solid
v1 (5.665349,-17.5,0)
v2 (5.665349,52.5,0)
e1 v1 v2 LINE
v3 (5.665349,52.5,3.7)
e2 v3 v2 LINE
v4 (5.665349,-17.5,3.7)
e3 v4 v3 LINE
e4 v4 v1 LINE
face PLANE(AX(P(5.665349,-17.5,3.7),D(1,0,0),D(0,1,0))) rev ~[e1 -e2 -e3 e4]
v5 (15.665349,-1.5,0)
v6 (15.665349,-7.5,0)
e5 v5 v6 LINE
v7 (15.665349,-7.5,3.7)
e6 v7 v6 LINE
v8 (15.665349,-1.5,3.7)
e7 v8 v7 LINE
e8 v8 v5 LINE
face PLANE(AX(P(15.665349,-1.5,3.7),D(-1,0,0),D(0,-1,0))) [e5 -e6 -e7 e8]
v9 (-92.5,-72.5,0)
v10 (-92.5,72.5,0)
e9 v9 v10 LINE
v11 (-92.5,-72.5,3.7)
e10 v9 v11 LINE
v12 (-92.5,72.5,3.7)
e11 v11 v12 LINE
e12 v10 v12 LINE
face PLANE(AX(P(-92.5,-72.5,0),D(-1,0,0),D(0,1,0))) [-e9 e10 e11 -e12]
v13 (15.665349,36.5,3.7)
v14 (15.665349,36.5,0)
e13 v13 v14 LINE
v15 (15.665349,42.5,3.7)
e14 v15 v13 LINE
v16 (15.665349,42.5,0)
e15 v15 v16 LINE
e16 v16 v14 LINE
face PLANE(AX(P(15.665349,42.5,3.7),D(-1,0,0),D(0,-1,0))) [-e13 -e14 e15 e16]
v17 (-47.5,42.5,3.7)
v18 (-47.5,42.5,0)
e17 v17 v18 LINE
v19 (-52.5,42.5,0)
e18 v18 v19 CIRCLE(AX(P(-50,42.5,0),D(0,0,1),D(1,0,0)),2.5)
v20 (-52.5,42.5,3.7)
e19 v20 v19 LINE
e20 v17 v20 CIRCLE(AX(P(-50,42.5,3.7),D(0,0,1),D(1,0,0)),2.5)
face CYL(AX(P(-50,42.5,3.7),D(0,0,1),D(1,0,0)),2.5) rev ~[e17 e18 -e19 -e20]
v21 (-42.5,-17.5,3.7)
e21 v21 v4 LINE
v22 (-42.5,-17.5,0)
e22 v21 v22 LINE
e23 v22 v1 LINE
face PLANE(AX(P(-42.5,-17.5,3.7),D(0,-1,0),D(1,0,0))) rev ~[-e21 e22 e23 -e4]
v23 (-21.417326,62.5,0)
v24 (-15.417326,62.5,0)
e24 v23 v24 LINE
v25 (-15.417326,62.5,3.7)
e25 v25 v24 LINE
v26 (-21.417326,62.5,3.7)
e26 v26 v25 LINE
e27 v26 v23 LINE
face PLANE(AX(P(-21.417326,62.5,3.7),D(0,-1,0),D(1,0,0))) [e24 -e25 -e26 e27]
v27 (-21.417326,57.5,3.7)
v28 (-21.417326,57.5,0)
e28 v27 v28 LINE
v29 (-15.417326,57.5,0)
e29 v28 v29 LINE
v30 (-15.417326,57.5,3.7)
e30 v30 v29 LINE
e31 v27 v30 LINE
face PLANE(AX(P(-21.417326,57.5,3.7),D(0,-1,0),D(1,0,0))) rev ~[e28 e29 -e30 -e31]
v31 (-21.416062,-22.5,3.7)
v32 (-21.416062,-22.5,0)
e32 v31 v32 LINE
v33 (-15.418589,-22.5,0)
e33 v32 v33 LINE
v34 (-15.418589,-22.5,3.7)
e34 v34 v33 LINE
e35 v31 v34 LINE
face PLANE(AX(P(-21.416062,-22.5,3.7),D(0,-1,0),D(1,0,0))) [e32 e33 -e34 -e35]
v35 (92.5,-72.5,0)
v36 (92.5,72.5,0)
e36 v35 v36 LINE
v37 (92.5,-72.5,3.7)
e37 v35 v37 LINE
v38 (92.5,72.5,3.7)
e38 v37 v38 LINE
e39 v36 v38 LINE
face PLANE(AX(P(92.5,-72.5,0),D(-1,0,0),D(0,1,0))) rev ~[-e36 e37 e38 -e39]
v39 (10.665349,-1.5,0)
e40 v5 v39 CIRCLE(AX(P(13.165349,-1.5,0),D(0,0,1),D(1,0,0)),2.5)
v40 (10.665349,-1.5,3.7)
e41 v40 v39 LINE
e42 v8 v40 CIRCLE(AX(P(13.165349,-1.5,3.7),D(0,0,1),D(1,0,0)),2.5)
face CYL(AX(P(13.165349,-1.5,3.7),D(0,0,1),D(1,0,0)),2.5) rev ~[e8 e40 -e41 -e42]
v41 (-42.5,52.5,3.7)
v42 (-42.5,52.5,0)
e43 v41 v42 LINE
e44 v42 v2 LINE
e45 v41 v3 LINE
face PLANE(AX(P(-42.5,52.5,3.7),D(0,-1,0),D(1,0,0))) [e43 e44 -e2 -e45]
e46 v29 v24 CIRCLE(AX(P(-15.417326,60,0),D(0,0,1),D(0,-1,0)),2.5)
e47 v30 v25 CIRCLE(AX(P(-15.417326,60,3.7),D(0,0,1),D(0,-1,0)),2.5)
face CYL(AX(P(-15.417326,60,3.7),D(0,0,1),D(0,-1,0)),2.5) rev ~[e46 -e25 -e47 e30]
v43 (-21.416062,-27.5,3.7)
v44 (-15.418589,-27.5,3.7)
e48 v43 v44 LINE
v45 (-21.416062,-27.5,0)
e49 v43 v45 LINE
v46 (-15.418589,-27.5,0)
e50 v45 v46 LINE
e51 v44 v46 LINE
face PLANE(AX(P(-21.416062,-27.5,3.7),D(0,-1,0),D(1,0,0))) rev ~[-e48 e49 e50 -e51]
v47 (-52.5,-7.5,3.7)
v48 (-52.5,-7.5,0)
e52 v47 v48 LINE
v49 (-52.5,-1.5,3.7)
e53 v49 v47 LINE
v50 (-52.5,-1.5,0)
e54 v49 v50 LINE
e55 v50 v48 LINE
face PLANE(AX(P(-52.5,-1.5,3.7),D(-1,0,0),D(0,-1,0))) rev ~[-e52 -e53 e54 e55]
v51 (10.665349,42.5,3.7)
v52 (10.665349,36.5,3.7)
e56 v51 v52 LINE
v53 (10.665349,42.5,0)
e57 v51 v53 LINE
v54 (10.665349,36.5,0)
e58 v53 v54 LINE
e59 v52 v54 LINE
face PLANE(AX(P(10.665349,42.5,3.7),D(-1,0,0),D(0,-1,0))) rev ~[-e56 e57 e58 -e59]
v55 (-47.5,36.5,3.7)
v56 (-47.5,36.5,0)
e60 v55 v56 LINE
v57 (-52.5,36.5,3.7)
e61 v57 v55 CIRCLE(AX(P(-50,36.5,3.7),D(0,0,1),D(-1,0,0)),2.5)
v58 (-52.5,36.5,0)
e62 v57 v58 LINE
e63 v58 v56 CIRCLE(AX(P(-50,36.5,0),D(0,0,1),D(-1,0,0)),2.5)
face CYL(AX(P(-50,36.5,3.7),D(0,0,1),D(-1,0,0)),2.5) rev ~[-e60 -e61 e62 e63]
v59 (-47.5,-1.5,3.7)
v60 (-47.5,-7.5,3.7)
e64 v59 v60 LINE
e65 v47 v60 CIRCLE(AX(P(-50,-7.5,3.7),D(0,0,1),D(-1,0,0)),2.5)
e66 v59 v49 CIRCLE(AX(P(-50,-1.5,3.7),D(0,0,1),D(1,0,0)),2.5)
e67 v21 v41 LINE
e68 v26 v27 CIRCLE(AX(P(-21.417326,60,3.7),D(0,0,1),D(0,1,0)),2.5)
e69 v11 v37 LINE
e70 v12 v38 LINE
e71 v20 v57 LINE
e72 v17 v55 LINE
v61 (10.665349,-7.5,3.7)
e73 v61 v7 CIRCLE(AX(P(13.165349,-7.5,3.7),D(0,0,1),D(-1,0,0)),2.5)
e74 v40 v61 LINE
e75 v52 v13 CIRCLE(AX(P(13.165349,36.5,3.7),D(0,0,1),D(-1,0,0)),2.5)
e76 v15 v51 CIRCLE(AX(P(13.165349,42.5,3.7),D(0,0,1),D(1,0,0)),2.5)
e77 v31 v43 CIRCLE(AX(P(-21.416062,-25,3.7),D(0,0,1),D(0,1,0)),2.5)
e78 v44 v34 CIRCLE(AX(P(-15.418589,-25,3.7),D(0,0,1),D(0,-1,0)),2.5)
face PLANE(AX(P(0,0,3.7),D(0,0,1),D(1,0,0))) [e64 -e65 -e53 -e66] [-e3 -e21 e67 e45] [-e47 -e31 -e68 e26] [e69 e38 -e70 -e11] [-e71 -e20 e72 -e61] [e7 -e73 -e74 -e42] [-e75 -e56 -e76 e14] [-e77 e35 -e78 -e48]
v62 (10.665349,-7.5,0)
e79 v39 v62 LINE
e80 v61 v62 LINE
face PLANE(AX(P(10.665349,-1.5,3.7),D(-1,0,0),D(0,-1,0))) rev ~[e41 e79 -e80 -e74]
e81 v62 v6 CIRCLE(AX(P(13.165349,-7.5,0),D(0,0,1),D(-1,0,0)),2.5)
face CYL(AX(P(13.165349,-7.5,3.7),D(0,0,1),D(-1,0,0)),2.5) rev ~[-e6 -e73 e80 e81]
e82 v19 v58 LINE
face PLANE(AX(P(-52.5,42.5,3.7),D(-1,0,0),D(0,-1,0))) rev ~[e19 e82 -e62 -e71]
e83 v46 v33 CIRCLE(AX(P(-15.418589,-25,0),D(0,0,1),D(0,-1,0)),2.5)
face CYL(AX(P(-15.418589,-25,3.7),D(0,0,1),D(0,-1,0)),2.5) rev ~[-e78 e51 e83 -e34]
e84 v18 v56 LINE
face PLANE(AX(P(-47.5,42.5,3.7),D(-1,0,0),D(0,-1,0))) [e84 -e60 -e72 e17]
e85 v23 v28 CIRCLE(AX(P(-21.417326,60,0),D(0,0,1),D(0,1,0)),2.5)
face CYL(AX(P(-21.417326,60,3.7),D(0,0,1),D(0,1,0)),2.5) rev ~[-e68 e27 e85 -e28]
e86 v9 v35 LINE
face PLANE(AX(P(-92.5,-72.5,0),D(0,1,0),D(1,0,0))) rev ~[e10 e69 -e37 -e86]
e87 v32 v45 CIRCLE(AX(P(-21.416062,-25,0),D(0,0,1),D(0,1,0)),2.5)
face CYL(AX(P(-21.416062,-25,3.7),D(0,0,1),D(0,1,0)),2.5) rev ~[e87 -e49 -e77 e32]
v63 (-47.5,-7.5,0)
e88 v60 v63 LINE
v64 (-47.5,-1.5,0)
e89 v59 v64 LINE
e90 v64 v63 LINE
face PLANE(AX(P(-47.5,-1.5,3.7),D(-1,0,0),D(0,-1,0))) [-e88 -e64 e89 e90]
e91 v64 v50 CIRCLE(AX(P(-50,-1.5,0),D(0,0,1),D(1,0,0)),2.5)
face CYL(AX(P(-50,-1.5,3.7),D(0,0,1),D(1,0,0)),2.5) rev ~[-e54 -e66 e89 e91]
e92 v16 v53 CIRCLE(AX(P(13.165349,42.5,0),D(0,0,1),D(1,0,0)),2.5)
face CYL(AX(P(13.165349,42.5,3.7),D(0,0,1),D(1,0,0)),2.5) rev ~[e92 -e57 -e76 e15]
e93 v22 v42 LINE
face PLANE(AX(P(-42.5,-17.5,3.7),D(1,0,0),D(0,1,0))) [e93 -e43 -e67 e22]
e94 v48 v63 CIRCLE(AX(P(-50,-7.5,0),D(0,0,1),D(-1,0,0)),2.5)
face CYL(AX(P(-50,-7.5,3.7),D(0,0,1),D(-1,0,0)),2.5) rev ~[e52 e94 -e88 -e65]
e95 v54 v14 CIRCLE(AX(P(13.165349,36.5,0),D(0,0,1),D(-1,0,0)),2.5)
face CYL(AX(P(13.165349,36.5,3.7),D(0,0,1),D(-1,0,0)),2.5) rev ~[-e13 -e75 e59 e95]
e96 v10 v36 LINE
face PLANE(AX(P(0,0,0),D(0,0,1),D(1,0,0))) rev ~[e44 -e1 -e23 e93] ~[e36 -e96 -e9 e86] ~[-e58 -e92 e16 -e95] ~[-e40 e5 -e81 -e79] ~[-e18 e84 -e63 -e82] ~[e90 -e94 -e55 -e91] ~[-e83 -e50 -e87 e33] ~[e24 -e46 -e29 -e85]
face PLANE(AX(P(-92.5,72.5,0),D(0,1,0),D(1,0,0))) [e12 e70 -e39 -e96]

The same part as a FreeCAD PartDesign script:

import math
import FreeCAD as App
import Part
import Sketcher
from FreeCAD import Vector

doc = App.newDocument("Part")
params = doc.addObject("Spreadsheet::Sheet", "Params")
for row, (alias, value) in enumerate([
    ("sketch1_width", "185 mm"),
    ("sketch1_height", "145 mm"),
    ("pad1_length", "3.7 mm"),
    ("sketch2_height", "70 mm"),
    ("pocket1_length", "5 mm"),
    ("sketch3_radius", "2.5 mm"),
    ("sketch3_width", "6 mm"),
    ("pocket2_length", "5 mm"),
], start=1):
    params.set(f"A{row}", alias)
    params.set(f"B{row}", "=" + value)
    params.setAlias(f"B{row}", alias)

body = doc.addObject("PartDesign::Body", "Body")

# Sketch on XY plane
sketch1 = body.newObject("Sketcher::SketchObject", "Sketch")
sketch1.AttachmentSupport = (doc.getObject("XY_Plane"), [""])
sketch1.MapMode = "FlatFace"
sketch1.addGeometry(Part.LineSegment(Vector(-92.5, 72.5, 0), Vector(-92.5, -72.5, 0)), False)
sketch1.addGeometry(Part.LineSegment(Vector(-92.5, -72.5, 0), Vector(92.5, -72.5, 0)), False)
sketch1.addGeometry(Part.LineSegment(Vector(92.5, -72.5, 0), Vector(92.5, 72.5, 0)), False)
sketch1.addGeometry(Part.LineSegment(Vector(92.5, 72.5, 0), Vector(-92.5, 72.5, 0)), False)
sketch1.addConstraint(Sketcher.Constraint("Coincident", 0, 2, 1, 1))
sketch1.addConstraint(Sketcher.Constraint("Coincident", 1, 2, 2, 1))
sketch1.addConstraint(Sketcher.Constraint("Coincident", 2, 2, 3, 1))
sketch1.addConstraint(Sketcher.Constraint("Coincident", 3, 2, 0, 1))
sketch1.addConstraint(Sketcher.Constraint("Vertical", 0))
sketch1.addConstraint(Sketcher.Constraint("Horizontal", 1))
sketch1.addConstraint(Sketcher.Constraint("Vertical", 2))
sketch1.addConstraint(Sketcher.Constraint("Horizontal", 3))
sketch1.addConstraint(Sketcher.Constraint("Symmetric", 0, 2, 2, 2, -1, 1))
sketch1.addConstraint(Sketcher.Constraint("DistanceX", 1, 1, 1, 2, 185.0))
sketch1.addConstraint(Sketcher.Constraint("DistanceY", 0, 2, 0, 1, 145.0))
sketch1.setExpression("Constraints[9]", "Params.sketch1_width")
sketch1.setExpression("Constraints[10]", "Params.sketch1_height")
pad1 = body.newObject("PartDesign::Pad", "Pad")
pad1.Profile = sketch1
pad1.setExpression("Length", "Params.pad1_length")

# Sketch on XY plane
sketch2 = body.newObject("Sketcher::SketchObject", "Sketch001")
sketch2.AttachmentSupport = (doc.getObject("XY_Plane"), [""])
sketch2.MapMode = "FlatFace"
sketch2.AttachmentOffset = App.Placement(Vector(0, 0, 3.7), App.Rotation())
sketch2.addGeometry(Part.LineSegment(Vector(-42.5, 52.5, 0), Vector(-42.5, -17.5, 0)), False)
sketch2.addGeometry(Part.LineSegment(Vector(-42.5, -17.5, 0), Vector(5.665349, -17.5, 0)), False)
sketch2.addGeometry(Part.LineSegment(Vector(5.665349, -17.5, 0), Vector(5.665349, 52.5, 0)), False)
sketch2.addGeometry(Part.LineSegment(Vector(5.665349, 52.5, 0), Vector(-42.5, 52.5, 0)), False)
sketch2.addConstraint(Sketcher.Constraint("Coincident", 0, 2, 1, 1))
sketch2.addConstraint(Sketcher.Constraint("Coincident", 1, 2, 2, 1))
sketch2.addConstraint(Sketcher.Constraint("Coincident", 2, 2, 3, 1))
sketch2.addConstraint(Sketcher.Constraint("Coincident", 3, 2, 0, 1))
sketch2.addConstraint(Sketcher.Constraint("Vertical", 0))
sketch2.addConstraint(Sketcher.Constraint("Horizontal", 1))
sketch2.addConstraint(Sketcher.Constraint("Vertical", 2))
sketch2.addConstraint(Sketcher.Constraint("Horizontal", 3))
sketch2.addConstraint(Sketcher.Constraint("DistanceY", 0, 2, 0, 1, 70.0))
sketch2.addConstraint(Sketcher.Constraint("DistanceX", 0, 2, -1, 1, 42.5))
sketch2.addConstraint(Sketcher.Constraint("DistanceY", 0, 2, -1, 1, 17.5))
sketch2.addConstraint(Sketcher.Constraint("DistanceX", 1, 1, 1, 2, 48.165349))
sketch2.setExpression("Constraints[8]", "Params.sketch2_height")
pocket1 = body.newObject("PartDesign::Pocket", "Pocket")
pocket1.Profile = sketch2
pocket1.setExpression("Length", "Params.pocket1_length")

# Sketch on XY plane
sketch3 = body.newObject("Sketcher::SketchObject", "Sketch002")
sketch3.AttachmentSupport = (doc.getObject("XY_Plane"), [""])
sketch3.MapMode = "FlatFace"
sketch3.AttachmentOffset = App.Placement(Vector(0, 0, 3.7), App.Rotation())
sketch3.addGeometry(Part.ArcOfCircle(Part.Circle(Vector(-21.417326, 60, 0), Vector(0, 0, 1), 2.5), math.radians(90), math.radians(270)), False)
sketch3.addGeometry(Part.LineSegment(Vector(-21.417326, 57.5, 0), Vector(-15.417326, 57.5, 0)), False)
sketch3.addGeometry(Part.ArcOfCircle(Part.Circle(Vector(-15.417326, 60, 0), Vector(0, 0, 1), 2.5), math.radians(-90), math.radians(90)), False)
sketch3.addGeometry(Part.LineSegment(Vector(-15.417326, 62.5, 0), Vector(-21.417326, 62.5, 0)), False)
sketch3.addGeometry(Part.LineSegment(Vector(-15.418589, -22.5, 0), Vector(-21.416062, -22.5, 0)), False)
sketch3.addGeometry(Part.ArcOfCircle(Part.Circle(Vector(-21.416062, -25, 0), Vector(0, 0, 1), 2.5), math.radians(90), math.radians(270)), False)
sketch3.addGeometry(Part.LineSegment(Vector(-21.416062, -27.5, 0), Vector(-15.418589, -27.5, 0)), False)
sketch3.addGeometry(Part.ArcOfCircle(Part.Circle(Vector(-15.418589, -25, 0), Vector(0, 0, 1), 2.5), math.radians(-90), math.radians(90)), False)
sketch3.addGeometry(Part.ArcOfCircle(Part.Circle(Vector(-50, 42.5, 0), Vector(0, 0, 1), 2.5), math.radians(0), math.radians(180)), False)
sketch3.addGeometry(Part.LineSegment(Vector(-52.5, 42.5, 0), Vector(-52.5, 36.5, 0)), False)
sketch3.addGeometry(Part.ArcOfCircle(Part.Circle(Vector(-50, 36.5, 0), Vector(0, 0, 1), 2.5), math.radians(180), math.radians(360)), False)
sketch3.addGeometry(Part.LineSegment(Vector(-47.5, 36.5, 0), Vector(-47.5, 42.5, 0)), False)
sketch3.addGeometry(Part.ArcOfCircle(Part.Circle(Vector(13.165349, 42.5, 0), Vector(0, 0, 1), 2.5), math.radians(0), math.radians(180)), False)
sketch3.addGeometry(Part.LineSegment(Vector(10.665349, 42.5, 0), Vector(10.665349, 36.5, 0)), False)
sketch3.addGeometry(Part.ArcOfCircle(Part.Circle(Vector(13.165349, 36.5, 0), Vector(0, 0, 1), 2.5), math.radians(180), math.radians(360)), False)
sketch3.addGeometry(Part.LineSegment(Vector(15.665349, 36.5, 0), Vector(15.665349, 42.5, 0)), False)
sketch3.addGeometry(Part.ArcOfCircle(Part.Circle(Vector(-50, -1.5, 0), Vector(0, 0, 1), 2.5), math.radians(0), math.radians(180)), False)
sketch3.addGeometry(Part.LineSegment(Vector(-52.5, -1.5, 0), Vector(-52.5, -7.5, 0)), False)
sketch3.addGeometry(Part.ArcOfCircle(Part.Circle(Vector(-50, -7.5, 0), Vector(0, 0, 1), 2.5), math.radians(180), math.radians(360)), False)
sketch3.addGeometry(Part.LineSegment(Vector(-47.5, -7.5, 0), Vector(-47.5, -1.5, 0)), False)
sketch3.addGeometry(Part.ArcOfCircle(Part.Circle(Vector(13.165349, -1.5, 0), Vector(0, 0, 1), 2.5), math.radians(0), math.radians(180)), False)
sketch3.addGeometry(Part.LineSegment(Vector(10.665349, -1.5, 0), Vector(10.665349, -7.5, 0)), False)
sketch3.addGeometry(Part.ArcOfCircle(Part.Circle(Vector(13.165349, -7.5, 0), Vector(0, 0, 1), 2.5), math.radians(180), math.radians(360)), False)
sketch3.addGeometry(Part.LineSegment(Vector(15.665349, -7.5, 0), Vector(15.665349, -1.5, 0)), False)
sketch3.addConstraint(Sketcher.Constraint("Tangent", 0, 2, 1, 1))
sketch3.addConstraint(Sketcher.Constraint("Tangent", 1, 2, 2, 1))
sketch3.addConstraint(Sketcher.Constraint("Tangent", 2, 2, 3, 1))
sketch3.addConstraint(Sketcher.Constraint("Tangent", 3, 2, 0, 1))
sketch3.addConstraint(Sketcher.Constraint("Tangent", 4, 2, 5, 1))
sketch3.addConstraint(Sketcher.Constraint("Tangent", 5, 2, 6, 1))
sketch3.addConstraint(Sketcher.Constraint("Tangent", 6, 2, 7, 1))
sketch3.addConstraint(Sketcher.Constraint("Tangent", 7, 2, 4, 1))
sketch3.addConstraint(Sketcher.Constraint("Tangent", 8, 2, 9, 1))
sketch3.addConstraint(Sketcher.Constraint("Tangent", 9, 2, 10, 1))
sketch3.addConstraint(Sketcher.Constraint("Tangent", 10, 2, 11, 1))
sketch3.addConstraint(Sketcher.Constraint("Tangent", 11, 2, 8, 1))
sketch3.addConstraint(Sketcher.Constraint("Tangent", 12, 2, 13, 1))
sketch3.addConstraint(Sketcher.Constraint("Tangent", 13, 2, 14, 1))
sketch3.addConstraint(Sketcher.Constraint("Tangent", 14, 2, 15, 1))
sketch3.addConstraint(Sketcher.Constraint("Tangent", 15, 2, 12, 1))
sketch3.addConstraint(Sketcher.Constraint("Tangent", 16, 2, 17, 1))
sketch3.addConstraint(Sketcher.Constraint("Tangent", 17, 2, 18, 1))
sketch3.addConstraint(Sketcher.Constraint("Tangent", 18, 2, 19, 1))
sketch3.addConstraint(Sketcher.Constraint("Tangent", 19, 2, 16, 1))
sketch3.addConstraint(Sketcher.Constraint("Tangent", 20, 2, 21, 1))
sketch3.addConstraint(Sketcher.Constraint("Tangent", 21, 2, 22, 1))
sketch3.addConstraint(Sketcher.Constraint("Tangent", 22, 2, 23, 1))
sketch3.addConstraint(Sketcher.Constraint("Tangent", 23, 2, 20, 1))
sketch3.addConstraint(Sketcher.Constraint("Horizontal", 1))
sketch3.addConstraint(Sketcher.Constraint("Horizontal", 3))
sketch3.addConstraint(Sketcher.Constraint("Horizontal", 4))
sketch3.addConstraint(Sketcher.Constraint("Horizontal", 6))
sketch3.addConstraint(Sketcher.Constraint("Vertical", 9))
sketch3.addConstraint(Sketcher.Constraint("Vertical", 11))
sketch3.addConstraint(Sketcher.Constraint("Vertical", 13))
sketch3.addConstraint(Sketcher.Constraint("Vertical", 15))
sketch3.addConstraint(Sketcher.Constraint("Vertical", 17))
sketch3.addConstraint(Sketcher.Constraint("Vertical", 19))
sketch3.addConstraint(Sketcher.Constraint("Vertical", 21))
sketch3.addConstraint(Sketcher.Constraint("Vertical", 23))
sketch3.addConstraint(Sketcher.Constraint("Equal", 2, 5))
sketch3.addConstraint(Sketcher.Constraint("Equal", 7, 8))
sketch3.addConstraint(Sketcher.Constraint("Equal", 10, 12))
sketch3.addConstraint(Sketcher.Constraint("Equal", 14, 16))
sketch3.addConstraint(Sketcher.Constraint("Equal", 18, 20))
sketch3.addConstraint(Sketcher.Constraint("Horizontal", 8, 3, 12, 3))
sketch3.addConstraint(Sketcher.Constraint("Horizontal", 10, 3, 14, 3))
sketch3.addConstraint(Sketcher.Constraint("Horizontal", 16, 3, 20, 3))
sketch3.addConstraint(Sketcher.Constraint("Horizontal", 18, 3, 22, 3))
sketch3.addConstraint(Sketcher.Constraint("Vertical", 10, 3, 16, 3))
sketch3.addConstraint(Sketcher.Constraint("Vertical", 14, 3, 20, 3))
sketch3.addConstraint(Sketcher.Constraint("Equal", 3, 9))
sketch3.addConstraint(Sketcher.Constraint("Equal", 15, 17))
sketch3.addConstraint(Sketcher.Constraint("Radius", 0, 2.5))
sketch3.addConstraint(Sketcher.Constraint("DistanceX", 1, 1, 1, 2, 6.0))
sketch3.addConstraint(Sketcher.Constraint("DistanceY", -1, 1, 0, 3, 60.0))
sketch3.addConstraint(Sketcher.Constraint("DistanceY", 5, 3, -1, 1, 25.0))
sketch3.addConstraint(Sketcher.Constraint("DistanceX", 8, 3, -1, 1, 50.0))
sketch3.addConstraint(Sketcher.Constraint("DistanceY", 16, 3, 10, 3, 38.0))
sketch3.addConstraint(Sketcher.Constraint("DistanceY", 8, 3, 0, 2, 15.0))
sketch3.addConstraint(Sketcher.Constraint("DistanceX", 4, 2, 4, 1, 5.997473))
sketch3.addConstraint(Sketcher.Constraint("DistanceX", 5, 3, -1, 1, 21.416062))
sketch3.addConstraint(Sketcher.Constraint("DistanceX", -1, 1, 12, 3, 13.165349))
sketch3.addConstraint(Sketcher.Constraint("DistanceX", 0, 3, -1, 1, 21.417326))
sketch3.setExpression("Constraints[49]", "Params.sketch3_radius")
sketch3.setExpression("Constraints[50]", "Params.sketch3_width")
pocket2 = body.newObject("PartDesign::Pocket", "Pocket001")
pocket2.Profile = sketch3
pocket2.setExpression("Length", "Params.pocket2_length")

doc.recompute()
